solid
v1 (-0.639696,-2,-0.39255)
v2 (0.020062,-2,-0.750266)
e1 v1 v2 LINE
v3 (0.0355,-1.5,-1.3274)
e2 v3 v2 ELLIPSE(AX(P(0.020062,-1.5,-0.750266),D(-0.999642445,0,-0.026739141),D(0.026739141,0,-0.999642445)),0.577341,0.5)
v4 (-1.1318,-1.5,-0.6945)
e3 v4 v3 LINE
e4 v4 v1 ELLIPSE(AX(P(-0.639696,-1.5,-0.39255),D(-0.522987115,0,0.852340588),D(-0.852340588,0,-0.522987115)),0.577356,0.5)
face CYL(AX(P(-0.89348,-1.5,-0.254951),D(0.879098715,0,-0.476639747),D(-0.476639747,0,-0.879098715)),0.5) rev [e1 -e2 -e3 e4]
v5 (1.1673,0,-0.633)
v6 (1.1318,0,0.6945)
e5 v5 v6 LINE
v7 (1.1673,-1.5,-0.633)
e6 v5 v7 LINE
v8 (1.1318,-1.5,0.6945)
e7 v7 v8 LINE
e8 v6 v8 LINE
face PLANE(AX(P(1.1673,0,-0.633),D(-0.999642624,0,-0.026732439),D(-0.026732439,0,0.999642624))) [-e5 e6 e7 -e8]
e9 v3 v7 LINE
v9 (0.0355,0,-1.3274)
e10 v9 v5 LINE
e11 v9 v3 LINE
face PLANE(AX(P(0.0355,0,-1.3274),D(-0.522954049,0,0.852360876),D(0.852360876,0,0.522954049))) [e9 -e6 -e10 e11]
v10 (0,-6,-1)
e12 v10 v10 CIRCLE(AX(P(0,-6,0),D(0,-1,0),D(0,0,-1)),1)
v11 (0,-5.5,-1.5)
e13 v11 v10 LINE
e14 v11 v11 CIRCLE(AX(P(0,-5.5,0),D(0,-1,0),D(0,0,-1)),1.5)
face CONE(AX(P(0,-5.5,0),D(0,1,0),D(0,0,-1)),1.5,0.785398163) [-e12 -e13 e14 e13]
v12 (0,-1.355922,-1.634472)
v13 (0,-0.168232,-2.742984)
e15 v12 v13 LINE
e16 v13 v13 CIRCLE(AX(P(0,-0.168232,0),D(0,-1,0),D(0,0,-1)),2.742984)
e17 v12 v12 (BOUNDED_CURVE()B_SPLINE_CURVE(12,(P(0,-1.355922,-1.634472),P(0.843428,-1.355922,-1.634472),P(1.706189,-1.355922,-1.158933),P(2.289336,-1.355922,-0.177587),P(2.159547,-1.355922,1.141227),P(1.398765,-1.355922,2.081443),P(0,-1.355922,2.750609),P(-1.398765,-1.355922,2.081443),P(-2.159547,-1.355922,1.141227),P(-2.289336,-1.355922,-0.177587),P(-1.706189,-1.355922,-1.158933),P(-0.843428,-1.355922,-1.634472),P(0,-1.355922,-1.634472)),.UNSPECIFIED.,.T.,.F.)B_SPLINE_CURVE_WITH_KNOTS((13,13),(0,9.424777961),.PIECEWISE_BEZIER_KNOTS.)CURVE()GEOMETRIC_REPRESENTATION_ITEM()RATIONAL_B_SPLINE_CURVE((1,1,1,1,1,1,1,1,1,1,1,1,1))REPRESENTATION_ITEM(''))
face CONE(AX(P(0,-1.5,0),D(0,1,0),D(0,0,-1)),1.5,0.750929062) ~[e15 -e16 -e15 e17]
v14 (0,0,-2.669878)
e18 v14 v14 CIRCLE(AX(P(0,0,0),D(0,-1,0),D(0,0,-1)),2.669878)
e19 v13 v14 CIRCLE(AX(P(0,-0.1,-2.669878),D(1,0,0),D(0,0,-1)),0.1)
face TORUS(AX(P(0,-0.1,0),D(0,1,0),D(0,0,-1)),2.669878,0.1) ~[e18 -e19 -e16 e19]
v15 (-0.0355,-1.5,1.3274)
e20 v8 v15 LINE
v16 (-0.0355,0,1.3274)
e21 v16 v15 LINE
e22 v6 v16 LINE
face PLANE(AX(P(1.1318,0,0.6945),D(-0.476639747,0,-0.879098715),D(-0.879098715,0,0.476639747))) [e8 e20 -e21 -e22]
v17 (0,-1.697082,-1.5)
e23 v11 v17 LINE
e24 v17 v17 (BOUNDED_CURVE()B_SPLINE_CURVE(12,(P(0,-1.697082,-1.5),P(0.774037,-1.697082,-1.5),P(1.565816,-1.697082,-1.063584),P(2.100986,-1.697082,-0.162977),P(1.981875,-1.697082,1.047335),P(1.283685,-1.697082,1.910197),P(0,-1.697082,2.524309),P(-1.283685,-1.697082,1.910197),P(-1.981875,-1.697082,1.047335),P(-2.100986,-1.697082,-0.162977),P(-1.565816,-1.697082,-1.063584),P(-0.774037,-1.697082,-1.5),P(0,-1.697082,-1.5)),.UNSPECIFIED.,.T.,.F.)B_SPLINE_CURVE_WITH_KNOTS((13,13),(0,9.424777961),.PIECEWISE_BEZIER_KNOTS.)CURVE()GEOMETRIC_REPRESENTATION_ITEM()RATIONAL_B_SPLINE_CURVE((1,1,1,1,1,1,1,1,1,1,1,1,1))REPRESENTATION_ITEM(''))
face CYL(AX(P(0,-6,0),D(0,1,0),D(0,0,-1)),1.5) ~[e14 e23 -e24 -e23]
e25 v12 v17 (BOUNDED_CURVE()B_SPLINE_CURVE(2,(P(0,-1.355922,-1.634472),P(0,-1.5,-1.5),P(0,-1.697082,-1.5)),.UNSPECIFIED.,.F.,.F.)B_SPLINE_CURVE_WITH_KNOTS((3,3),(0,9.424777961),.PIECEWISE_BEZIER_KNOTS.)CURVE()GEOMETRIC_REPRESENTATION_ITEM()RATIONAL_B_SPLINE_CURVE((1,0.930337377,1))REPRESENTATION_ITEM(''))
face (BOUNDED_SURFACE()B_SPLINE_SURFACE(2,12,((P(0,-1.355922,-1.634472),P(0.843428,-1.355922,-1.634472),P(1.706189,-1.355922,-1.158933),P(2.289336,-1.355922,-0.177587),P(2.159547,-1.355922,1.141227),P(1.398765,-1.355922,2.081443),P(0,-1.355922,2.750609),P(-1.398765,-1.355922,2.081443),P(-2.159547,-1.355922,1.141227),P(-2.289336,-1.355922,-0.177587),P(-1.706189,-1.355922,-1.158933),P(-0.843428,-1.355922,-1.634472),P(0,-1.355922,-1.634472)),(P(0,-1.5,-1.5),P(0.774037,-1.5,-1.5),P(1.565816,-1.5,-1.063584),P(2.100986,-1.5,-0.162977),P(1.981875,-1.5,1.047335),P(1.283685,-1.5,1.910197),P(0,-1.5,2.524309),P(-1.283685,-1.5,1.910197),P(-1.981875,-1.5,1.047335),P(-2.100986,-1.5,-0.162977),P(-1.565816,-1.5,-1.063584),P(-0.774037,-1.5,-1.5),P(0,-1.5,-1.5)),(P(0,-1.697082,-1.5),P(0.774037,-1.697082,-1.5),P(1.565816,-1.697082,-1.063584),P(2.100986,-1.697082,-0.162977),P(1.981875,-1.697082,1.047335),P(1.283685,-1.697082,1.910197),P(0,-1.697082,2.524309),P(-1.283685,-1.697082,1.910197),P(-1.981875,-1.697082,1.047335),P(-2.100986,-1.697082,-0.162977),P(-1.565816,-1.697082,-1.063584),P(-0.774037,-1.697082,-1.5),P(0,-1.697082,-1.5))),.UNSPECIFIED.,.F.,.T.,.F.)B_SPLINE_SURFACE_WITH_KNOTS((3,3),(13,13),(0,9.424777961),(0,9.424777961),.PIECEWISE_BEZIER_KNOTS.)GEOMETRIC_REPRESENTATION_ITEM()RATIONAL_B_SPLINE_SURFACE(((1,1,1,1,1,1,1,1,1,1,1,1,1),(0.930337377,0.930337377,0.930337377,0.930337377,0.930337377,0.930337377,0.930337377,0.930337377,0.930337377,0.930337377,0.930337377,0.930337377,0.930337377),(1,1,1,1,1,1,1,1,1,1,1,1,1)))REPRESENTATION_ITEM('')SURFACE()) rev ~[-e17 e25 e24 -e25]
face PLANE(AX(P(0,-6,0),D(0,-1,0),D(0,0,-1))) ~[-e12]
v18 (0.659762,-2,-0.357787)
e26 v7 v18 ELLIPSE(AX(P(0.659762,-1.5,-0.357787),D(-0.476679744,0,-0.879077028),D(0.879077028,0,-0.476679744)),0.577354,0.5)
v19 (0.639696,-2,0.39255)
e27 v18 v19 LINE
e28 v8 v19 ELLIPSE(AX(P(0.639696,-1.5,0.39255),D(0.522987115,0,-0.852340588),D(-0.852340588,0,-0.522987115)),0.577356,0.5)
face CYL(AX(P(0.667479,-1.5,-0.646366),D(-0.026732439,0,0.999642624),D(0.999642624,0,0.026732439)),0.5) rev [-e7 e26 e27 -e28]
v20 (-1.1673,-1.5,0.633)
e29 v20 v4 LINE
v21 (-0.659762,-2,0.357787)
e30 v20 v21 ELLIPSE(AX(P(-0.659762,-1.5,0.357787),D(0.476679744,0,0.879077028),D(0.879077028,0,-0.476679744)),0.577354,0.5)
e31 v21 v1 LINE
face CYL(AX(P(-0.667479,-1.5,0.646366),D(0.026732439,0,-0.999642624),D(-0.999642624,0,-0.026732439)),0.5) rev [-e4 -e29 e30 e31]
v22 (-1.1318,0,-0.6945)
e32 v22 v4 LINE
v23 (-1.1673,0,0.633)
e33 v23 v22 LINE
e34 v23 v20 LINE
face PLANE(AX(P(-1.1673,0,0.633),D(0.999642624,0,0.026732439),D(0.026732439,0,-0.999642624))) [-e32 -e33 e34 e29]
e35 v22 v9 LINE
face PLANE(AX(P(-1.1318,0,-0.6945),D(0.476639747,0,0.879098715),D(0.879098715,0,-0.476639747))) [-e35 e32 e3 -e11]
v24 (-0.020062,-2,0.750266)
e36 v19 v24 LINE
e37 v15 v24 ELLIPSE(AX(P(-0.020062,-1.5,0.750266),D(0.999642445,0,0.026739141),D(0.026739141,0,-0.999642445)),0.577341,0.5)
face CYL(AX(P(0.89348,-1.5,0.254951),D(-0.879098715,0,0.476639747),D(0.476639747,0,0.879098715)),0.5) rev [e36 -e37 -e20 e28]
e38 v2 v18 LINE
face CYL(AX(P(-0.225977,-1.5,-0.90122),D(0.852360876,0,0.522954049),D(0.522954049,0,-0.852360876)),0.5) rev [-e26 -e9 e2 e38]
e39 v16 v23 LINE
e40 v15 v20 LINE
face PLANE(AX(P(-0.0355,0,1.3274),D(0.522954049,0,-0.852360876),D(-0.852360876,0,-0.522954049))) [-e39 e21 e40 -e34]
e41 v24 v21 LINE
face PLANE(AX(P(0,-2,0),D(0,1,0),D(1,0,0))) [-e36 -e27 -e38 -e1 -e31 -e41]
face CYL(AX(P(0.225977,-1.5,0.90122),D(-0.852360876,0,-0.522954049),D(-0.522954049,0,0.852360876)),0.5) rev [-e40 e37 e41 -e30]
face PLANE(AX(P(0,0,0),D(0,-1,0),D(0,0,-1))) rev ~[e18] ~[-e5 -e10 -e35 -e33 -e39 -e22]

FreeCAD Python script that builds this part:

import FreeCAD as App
import Part
import Sketcher
Q = App.Units.Quantity


def edges_at(feature, points):
    """Names of the edges that pass closest to the given points."""
    edges = feature.Shape.Edges
    near = lambda p: min(range(len(edges)), key=lambda i: edges[i].distToShape(Part.Vertex(*p))[0])
    return sorted({f"Edge{near(p) + 1}" for p in points})


def add_polygon(sketch, points):
    """Adds a closed chain of lines whose ends are joined by coincident constraints."""
    first, n = sketch.GeometryCount, len(points)
    for a, b in zip(points, points[1:] + points[:1]):
        sketch.addGeometry(Part.LineSegment(App.Vector(*a, 0), App.Vector(*b, 0)), False)
    for i in range(n):
        sketch.addConstraint(Sketcher.Constraint("Coincident", first + i, 2, first + (i + 1) % n, 1))

doc = App.newDocument("Part")
body = doc.addObject("PartDesign::Body", "Body")

# Sketch on YZ plane
sketch1 = doc.addObject("Sketcher::SketchObject", "Sketch")
body.addObject(sketch1)
sketch1.AttachmentSupport = (doc.YZ_Plane, [""])
sketch1.MapMode = "FlatFace"
add_polygon(sketch1, [(-1.5, -1.5), (0, -2.9), (0, 0), (-6, 0), (-6, -1.5)])  # lines 0-4
sketch1.addConstraint([
    Sketcher.Constraint("Vertical", 1),
    Sketcher.Constraint("Horizontal", 2),
    Sketcher.Constraint("Vertical", 3),
    Sketcher.Constraint("Horizontal", 4),
    Sketcher.Constraint("Coincident", 1, 2, -1, 1),
    Sketcher.Constraint("DistanceX", 2, 2, 2, 1, 6.0),
    Sketcher.Constraint("DistanceY", 3, 2, 3, 1, 1.5),
    Sketcher.Constraint("DistanceX", 4, 2, -1, 1, 1.5),
    Sketcher.Constraint("DistanceY", 1, 1, 1, 2, 2.9),
])
revolution = doc.addObject("PartDesign::Revolution", "Revolution")
body.addObject(revolution)
revolution.Profile = sketch1
revolution.ReferenceAxis = (sketch1, ["H_Axis"])
revolution.Angle = 360

# Sketch on XZ plane
sketch2 = doc.addObject("Sketcher::SketchObject", "Sketch001")
body.addObject(sketch2)
sketch2.AttachmentSupport = (doc.XZ_Plane, [""])
sketch2.MapMode = "FlatFace"
add_polygon(sketch2, [(-1.1, -0.7), (-1.2, 0.6), (0, 1.3), (1.1, 0.7), (1.2, -0.6), (0, -1.3)])  # lines 0-5
sketch2.addConstraint([
    Sketcher.Constraint("Symmetric", 0, 2, 3, 2, -1, 1),
    Sketcher.Constraint("Symmetric", 1, 2, 4, 2, -1, 1),
    Sketcher.Constraint("Symmetric", 2, 2, 5, 2, -1, 1),
    Sketcher.Constraint("Equal", 0, 1),
    Sketcher.Constraint("Equal", 1, 2),
    Sketcher.Constraint("Angle", 1, Q("31.5306 deg")),
    Sketcher.Constraint("Distance", 0, 1.328),
    Sketcher.Constraint("DistanceY", -1, 1, 0, 2, 0.633),
    Sketcher.Constraint("DistanceY", 2, 2, 1, 2, 0.633),
])
pocket1 = doc.addObject("PartDesign::Pocket", "Pocket")
body.addObject(pocket1)
pocket1.Profile = sketch2
pocket1.Length = 2
pocket1.Reversed = True
doc.recompute()

fillet = doc.addObject("PartDesign::Fillet", "Fillet")
body.addObject(fillet)
fillet.Base = (pocket1, edges_at(pocket1, [
    (-1.15, -2, -0.031),
    (-0.601, -2, 0.98),
    (-0.548, -2, -1.011),
    (0.601, -2, -0.98),
    (0.548, -2, 1.011),
    (1.15, -2, 0.031),
]))
fillet.Radius = 0.5
doc.recompute()

fillet2 = doc.addObject("PartDesign::Fillet", "Fillet001")
body.addObject(fillet2)
fillet2.Base = (fillet, edges_at(fillet, [(0, -1.5, 1.5)]))
fillet2.Radius = 0.5
doc.recompute()

fillet3 = doc.addObject("PartDesign::Fillet", "Fillet002")
body.addObject(fillet3)
fillet3.Base = (fillet2, edges_at(fillet2, [(0, 0, 2.9)]))
fillet3.Radius = 0.1
doc.recompute()

chamfer = doc.addObject("PartDesign::Chamfer", "Chamfer")
body.addObject(chamfer)
chamfer.Base = (fillet3, edges_at(fillet3, [(0, -6, 1.5)]))
chamfer.Size = 0.5

doc.recompute()
